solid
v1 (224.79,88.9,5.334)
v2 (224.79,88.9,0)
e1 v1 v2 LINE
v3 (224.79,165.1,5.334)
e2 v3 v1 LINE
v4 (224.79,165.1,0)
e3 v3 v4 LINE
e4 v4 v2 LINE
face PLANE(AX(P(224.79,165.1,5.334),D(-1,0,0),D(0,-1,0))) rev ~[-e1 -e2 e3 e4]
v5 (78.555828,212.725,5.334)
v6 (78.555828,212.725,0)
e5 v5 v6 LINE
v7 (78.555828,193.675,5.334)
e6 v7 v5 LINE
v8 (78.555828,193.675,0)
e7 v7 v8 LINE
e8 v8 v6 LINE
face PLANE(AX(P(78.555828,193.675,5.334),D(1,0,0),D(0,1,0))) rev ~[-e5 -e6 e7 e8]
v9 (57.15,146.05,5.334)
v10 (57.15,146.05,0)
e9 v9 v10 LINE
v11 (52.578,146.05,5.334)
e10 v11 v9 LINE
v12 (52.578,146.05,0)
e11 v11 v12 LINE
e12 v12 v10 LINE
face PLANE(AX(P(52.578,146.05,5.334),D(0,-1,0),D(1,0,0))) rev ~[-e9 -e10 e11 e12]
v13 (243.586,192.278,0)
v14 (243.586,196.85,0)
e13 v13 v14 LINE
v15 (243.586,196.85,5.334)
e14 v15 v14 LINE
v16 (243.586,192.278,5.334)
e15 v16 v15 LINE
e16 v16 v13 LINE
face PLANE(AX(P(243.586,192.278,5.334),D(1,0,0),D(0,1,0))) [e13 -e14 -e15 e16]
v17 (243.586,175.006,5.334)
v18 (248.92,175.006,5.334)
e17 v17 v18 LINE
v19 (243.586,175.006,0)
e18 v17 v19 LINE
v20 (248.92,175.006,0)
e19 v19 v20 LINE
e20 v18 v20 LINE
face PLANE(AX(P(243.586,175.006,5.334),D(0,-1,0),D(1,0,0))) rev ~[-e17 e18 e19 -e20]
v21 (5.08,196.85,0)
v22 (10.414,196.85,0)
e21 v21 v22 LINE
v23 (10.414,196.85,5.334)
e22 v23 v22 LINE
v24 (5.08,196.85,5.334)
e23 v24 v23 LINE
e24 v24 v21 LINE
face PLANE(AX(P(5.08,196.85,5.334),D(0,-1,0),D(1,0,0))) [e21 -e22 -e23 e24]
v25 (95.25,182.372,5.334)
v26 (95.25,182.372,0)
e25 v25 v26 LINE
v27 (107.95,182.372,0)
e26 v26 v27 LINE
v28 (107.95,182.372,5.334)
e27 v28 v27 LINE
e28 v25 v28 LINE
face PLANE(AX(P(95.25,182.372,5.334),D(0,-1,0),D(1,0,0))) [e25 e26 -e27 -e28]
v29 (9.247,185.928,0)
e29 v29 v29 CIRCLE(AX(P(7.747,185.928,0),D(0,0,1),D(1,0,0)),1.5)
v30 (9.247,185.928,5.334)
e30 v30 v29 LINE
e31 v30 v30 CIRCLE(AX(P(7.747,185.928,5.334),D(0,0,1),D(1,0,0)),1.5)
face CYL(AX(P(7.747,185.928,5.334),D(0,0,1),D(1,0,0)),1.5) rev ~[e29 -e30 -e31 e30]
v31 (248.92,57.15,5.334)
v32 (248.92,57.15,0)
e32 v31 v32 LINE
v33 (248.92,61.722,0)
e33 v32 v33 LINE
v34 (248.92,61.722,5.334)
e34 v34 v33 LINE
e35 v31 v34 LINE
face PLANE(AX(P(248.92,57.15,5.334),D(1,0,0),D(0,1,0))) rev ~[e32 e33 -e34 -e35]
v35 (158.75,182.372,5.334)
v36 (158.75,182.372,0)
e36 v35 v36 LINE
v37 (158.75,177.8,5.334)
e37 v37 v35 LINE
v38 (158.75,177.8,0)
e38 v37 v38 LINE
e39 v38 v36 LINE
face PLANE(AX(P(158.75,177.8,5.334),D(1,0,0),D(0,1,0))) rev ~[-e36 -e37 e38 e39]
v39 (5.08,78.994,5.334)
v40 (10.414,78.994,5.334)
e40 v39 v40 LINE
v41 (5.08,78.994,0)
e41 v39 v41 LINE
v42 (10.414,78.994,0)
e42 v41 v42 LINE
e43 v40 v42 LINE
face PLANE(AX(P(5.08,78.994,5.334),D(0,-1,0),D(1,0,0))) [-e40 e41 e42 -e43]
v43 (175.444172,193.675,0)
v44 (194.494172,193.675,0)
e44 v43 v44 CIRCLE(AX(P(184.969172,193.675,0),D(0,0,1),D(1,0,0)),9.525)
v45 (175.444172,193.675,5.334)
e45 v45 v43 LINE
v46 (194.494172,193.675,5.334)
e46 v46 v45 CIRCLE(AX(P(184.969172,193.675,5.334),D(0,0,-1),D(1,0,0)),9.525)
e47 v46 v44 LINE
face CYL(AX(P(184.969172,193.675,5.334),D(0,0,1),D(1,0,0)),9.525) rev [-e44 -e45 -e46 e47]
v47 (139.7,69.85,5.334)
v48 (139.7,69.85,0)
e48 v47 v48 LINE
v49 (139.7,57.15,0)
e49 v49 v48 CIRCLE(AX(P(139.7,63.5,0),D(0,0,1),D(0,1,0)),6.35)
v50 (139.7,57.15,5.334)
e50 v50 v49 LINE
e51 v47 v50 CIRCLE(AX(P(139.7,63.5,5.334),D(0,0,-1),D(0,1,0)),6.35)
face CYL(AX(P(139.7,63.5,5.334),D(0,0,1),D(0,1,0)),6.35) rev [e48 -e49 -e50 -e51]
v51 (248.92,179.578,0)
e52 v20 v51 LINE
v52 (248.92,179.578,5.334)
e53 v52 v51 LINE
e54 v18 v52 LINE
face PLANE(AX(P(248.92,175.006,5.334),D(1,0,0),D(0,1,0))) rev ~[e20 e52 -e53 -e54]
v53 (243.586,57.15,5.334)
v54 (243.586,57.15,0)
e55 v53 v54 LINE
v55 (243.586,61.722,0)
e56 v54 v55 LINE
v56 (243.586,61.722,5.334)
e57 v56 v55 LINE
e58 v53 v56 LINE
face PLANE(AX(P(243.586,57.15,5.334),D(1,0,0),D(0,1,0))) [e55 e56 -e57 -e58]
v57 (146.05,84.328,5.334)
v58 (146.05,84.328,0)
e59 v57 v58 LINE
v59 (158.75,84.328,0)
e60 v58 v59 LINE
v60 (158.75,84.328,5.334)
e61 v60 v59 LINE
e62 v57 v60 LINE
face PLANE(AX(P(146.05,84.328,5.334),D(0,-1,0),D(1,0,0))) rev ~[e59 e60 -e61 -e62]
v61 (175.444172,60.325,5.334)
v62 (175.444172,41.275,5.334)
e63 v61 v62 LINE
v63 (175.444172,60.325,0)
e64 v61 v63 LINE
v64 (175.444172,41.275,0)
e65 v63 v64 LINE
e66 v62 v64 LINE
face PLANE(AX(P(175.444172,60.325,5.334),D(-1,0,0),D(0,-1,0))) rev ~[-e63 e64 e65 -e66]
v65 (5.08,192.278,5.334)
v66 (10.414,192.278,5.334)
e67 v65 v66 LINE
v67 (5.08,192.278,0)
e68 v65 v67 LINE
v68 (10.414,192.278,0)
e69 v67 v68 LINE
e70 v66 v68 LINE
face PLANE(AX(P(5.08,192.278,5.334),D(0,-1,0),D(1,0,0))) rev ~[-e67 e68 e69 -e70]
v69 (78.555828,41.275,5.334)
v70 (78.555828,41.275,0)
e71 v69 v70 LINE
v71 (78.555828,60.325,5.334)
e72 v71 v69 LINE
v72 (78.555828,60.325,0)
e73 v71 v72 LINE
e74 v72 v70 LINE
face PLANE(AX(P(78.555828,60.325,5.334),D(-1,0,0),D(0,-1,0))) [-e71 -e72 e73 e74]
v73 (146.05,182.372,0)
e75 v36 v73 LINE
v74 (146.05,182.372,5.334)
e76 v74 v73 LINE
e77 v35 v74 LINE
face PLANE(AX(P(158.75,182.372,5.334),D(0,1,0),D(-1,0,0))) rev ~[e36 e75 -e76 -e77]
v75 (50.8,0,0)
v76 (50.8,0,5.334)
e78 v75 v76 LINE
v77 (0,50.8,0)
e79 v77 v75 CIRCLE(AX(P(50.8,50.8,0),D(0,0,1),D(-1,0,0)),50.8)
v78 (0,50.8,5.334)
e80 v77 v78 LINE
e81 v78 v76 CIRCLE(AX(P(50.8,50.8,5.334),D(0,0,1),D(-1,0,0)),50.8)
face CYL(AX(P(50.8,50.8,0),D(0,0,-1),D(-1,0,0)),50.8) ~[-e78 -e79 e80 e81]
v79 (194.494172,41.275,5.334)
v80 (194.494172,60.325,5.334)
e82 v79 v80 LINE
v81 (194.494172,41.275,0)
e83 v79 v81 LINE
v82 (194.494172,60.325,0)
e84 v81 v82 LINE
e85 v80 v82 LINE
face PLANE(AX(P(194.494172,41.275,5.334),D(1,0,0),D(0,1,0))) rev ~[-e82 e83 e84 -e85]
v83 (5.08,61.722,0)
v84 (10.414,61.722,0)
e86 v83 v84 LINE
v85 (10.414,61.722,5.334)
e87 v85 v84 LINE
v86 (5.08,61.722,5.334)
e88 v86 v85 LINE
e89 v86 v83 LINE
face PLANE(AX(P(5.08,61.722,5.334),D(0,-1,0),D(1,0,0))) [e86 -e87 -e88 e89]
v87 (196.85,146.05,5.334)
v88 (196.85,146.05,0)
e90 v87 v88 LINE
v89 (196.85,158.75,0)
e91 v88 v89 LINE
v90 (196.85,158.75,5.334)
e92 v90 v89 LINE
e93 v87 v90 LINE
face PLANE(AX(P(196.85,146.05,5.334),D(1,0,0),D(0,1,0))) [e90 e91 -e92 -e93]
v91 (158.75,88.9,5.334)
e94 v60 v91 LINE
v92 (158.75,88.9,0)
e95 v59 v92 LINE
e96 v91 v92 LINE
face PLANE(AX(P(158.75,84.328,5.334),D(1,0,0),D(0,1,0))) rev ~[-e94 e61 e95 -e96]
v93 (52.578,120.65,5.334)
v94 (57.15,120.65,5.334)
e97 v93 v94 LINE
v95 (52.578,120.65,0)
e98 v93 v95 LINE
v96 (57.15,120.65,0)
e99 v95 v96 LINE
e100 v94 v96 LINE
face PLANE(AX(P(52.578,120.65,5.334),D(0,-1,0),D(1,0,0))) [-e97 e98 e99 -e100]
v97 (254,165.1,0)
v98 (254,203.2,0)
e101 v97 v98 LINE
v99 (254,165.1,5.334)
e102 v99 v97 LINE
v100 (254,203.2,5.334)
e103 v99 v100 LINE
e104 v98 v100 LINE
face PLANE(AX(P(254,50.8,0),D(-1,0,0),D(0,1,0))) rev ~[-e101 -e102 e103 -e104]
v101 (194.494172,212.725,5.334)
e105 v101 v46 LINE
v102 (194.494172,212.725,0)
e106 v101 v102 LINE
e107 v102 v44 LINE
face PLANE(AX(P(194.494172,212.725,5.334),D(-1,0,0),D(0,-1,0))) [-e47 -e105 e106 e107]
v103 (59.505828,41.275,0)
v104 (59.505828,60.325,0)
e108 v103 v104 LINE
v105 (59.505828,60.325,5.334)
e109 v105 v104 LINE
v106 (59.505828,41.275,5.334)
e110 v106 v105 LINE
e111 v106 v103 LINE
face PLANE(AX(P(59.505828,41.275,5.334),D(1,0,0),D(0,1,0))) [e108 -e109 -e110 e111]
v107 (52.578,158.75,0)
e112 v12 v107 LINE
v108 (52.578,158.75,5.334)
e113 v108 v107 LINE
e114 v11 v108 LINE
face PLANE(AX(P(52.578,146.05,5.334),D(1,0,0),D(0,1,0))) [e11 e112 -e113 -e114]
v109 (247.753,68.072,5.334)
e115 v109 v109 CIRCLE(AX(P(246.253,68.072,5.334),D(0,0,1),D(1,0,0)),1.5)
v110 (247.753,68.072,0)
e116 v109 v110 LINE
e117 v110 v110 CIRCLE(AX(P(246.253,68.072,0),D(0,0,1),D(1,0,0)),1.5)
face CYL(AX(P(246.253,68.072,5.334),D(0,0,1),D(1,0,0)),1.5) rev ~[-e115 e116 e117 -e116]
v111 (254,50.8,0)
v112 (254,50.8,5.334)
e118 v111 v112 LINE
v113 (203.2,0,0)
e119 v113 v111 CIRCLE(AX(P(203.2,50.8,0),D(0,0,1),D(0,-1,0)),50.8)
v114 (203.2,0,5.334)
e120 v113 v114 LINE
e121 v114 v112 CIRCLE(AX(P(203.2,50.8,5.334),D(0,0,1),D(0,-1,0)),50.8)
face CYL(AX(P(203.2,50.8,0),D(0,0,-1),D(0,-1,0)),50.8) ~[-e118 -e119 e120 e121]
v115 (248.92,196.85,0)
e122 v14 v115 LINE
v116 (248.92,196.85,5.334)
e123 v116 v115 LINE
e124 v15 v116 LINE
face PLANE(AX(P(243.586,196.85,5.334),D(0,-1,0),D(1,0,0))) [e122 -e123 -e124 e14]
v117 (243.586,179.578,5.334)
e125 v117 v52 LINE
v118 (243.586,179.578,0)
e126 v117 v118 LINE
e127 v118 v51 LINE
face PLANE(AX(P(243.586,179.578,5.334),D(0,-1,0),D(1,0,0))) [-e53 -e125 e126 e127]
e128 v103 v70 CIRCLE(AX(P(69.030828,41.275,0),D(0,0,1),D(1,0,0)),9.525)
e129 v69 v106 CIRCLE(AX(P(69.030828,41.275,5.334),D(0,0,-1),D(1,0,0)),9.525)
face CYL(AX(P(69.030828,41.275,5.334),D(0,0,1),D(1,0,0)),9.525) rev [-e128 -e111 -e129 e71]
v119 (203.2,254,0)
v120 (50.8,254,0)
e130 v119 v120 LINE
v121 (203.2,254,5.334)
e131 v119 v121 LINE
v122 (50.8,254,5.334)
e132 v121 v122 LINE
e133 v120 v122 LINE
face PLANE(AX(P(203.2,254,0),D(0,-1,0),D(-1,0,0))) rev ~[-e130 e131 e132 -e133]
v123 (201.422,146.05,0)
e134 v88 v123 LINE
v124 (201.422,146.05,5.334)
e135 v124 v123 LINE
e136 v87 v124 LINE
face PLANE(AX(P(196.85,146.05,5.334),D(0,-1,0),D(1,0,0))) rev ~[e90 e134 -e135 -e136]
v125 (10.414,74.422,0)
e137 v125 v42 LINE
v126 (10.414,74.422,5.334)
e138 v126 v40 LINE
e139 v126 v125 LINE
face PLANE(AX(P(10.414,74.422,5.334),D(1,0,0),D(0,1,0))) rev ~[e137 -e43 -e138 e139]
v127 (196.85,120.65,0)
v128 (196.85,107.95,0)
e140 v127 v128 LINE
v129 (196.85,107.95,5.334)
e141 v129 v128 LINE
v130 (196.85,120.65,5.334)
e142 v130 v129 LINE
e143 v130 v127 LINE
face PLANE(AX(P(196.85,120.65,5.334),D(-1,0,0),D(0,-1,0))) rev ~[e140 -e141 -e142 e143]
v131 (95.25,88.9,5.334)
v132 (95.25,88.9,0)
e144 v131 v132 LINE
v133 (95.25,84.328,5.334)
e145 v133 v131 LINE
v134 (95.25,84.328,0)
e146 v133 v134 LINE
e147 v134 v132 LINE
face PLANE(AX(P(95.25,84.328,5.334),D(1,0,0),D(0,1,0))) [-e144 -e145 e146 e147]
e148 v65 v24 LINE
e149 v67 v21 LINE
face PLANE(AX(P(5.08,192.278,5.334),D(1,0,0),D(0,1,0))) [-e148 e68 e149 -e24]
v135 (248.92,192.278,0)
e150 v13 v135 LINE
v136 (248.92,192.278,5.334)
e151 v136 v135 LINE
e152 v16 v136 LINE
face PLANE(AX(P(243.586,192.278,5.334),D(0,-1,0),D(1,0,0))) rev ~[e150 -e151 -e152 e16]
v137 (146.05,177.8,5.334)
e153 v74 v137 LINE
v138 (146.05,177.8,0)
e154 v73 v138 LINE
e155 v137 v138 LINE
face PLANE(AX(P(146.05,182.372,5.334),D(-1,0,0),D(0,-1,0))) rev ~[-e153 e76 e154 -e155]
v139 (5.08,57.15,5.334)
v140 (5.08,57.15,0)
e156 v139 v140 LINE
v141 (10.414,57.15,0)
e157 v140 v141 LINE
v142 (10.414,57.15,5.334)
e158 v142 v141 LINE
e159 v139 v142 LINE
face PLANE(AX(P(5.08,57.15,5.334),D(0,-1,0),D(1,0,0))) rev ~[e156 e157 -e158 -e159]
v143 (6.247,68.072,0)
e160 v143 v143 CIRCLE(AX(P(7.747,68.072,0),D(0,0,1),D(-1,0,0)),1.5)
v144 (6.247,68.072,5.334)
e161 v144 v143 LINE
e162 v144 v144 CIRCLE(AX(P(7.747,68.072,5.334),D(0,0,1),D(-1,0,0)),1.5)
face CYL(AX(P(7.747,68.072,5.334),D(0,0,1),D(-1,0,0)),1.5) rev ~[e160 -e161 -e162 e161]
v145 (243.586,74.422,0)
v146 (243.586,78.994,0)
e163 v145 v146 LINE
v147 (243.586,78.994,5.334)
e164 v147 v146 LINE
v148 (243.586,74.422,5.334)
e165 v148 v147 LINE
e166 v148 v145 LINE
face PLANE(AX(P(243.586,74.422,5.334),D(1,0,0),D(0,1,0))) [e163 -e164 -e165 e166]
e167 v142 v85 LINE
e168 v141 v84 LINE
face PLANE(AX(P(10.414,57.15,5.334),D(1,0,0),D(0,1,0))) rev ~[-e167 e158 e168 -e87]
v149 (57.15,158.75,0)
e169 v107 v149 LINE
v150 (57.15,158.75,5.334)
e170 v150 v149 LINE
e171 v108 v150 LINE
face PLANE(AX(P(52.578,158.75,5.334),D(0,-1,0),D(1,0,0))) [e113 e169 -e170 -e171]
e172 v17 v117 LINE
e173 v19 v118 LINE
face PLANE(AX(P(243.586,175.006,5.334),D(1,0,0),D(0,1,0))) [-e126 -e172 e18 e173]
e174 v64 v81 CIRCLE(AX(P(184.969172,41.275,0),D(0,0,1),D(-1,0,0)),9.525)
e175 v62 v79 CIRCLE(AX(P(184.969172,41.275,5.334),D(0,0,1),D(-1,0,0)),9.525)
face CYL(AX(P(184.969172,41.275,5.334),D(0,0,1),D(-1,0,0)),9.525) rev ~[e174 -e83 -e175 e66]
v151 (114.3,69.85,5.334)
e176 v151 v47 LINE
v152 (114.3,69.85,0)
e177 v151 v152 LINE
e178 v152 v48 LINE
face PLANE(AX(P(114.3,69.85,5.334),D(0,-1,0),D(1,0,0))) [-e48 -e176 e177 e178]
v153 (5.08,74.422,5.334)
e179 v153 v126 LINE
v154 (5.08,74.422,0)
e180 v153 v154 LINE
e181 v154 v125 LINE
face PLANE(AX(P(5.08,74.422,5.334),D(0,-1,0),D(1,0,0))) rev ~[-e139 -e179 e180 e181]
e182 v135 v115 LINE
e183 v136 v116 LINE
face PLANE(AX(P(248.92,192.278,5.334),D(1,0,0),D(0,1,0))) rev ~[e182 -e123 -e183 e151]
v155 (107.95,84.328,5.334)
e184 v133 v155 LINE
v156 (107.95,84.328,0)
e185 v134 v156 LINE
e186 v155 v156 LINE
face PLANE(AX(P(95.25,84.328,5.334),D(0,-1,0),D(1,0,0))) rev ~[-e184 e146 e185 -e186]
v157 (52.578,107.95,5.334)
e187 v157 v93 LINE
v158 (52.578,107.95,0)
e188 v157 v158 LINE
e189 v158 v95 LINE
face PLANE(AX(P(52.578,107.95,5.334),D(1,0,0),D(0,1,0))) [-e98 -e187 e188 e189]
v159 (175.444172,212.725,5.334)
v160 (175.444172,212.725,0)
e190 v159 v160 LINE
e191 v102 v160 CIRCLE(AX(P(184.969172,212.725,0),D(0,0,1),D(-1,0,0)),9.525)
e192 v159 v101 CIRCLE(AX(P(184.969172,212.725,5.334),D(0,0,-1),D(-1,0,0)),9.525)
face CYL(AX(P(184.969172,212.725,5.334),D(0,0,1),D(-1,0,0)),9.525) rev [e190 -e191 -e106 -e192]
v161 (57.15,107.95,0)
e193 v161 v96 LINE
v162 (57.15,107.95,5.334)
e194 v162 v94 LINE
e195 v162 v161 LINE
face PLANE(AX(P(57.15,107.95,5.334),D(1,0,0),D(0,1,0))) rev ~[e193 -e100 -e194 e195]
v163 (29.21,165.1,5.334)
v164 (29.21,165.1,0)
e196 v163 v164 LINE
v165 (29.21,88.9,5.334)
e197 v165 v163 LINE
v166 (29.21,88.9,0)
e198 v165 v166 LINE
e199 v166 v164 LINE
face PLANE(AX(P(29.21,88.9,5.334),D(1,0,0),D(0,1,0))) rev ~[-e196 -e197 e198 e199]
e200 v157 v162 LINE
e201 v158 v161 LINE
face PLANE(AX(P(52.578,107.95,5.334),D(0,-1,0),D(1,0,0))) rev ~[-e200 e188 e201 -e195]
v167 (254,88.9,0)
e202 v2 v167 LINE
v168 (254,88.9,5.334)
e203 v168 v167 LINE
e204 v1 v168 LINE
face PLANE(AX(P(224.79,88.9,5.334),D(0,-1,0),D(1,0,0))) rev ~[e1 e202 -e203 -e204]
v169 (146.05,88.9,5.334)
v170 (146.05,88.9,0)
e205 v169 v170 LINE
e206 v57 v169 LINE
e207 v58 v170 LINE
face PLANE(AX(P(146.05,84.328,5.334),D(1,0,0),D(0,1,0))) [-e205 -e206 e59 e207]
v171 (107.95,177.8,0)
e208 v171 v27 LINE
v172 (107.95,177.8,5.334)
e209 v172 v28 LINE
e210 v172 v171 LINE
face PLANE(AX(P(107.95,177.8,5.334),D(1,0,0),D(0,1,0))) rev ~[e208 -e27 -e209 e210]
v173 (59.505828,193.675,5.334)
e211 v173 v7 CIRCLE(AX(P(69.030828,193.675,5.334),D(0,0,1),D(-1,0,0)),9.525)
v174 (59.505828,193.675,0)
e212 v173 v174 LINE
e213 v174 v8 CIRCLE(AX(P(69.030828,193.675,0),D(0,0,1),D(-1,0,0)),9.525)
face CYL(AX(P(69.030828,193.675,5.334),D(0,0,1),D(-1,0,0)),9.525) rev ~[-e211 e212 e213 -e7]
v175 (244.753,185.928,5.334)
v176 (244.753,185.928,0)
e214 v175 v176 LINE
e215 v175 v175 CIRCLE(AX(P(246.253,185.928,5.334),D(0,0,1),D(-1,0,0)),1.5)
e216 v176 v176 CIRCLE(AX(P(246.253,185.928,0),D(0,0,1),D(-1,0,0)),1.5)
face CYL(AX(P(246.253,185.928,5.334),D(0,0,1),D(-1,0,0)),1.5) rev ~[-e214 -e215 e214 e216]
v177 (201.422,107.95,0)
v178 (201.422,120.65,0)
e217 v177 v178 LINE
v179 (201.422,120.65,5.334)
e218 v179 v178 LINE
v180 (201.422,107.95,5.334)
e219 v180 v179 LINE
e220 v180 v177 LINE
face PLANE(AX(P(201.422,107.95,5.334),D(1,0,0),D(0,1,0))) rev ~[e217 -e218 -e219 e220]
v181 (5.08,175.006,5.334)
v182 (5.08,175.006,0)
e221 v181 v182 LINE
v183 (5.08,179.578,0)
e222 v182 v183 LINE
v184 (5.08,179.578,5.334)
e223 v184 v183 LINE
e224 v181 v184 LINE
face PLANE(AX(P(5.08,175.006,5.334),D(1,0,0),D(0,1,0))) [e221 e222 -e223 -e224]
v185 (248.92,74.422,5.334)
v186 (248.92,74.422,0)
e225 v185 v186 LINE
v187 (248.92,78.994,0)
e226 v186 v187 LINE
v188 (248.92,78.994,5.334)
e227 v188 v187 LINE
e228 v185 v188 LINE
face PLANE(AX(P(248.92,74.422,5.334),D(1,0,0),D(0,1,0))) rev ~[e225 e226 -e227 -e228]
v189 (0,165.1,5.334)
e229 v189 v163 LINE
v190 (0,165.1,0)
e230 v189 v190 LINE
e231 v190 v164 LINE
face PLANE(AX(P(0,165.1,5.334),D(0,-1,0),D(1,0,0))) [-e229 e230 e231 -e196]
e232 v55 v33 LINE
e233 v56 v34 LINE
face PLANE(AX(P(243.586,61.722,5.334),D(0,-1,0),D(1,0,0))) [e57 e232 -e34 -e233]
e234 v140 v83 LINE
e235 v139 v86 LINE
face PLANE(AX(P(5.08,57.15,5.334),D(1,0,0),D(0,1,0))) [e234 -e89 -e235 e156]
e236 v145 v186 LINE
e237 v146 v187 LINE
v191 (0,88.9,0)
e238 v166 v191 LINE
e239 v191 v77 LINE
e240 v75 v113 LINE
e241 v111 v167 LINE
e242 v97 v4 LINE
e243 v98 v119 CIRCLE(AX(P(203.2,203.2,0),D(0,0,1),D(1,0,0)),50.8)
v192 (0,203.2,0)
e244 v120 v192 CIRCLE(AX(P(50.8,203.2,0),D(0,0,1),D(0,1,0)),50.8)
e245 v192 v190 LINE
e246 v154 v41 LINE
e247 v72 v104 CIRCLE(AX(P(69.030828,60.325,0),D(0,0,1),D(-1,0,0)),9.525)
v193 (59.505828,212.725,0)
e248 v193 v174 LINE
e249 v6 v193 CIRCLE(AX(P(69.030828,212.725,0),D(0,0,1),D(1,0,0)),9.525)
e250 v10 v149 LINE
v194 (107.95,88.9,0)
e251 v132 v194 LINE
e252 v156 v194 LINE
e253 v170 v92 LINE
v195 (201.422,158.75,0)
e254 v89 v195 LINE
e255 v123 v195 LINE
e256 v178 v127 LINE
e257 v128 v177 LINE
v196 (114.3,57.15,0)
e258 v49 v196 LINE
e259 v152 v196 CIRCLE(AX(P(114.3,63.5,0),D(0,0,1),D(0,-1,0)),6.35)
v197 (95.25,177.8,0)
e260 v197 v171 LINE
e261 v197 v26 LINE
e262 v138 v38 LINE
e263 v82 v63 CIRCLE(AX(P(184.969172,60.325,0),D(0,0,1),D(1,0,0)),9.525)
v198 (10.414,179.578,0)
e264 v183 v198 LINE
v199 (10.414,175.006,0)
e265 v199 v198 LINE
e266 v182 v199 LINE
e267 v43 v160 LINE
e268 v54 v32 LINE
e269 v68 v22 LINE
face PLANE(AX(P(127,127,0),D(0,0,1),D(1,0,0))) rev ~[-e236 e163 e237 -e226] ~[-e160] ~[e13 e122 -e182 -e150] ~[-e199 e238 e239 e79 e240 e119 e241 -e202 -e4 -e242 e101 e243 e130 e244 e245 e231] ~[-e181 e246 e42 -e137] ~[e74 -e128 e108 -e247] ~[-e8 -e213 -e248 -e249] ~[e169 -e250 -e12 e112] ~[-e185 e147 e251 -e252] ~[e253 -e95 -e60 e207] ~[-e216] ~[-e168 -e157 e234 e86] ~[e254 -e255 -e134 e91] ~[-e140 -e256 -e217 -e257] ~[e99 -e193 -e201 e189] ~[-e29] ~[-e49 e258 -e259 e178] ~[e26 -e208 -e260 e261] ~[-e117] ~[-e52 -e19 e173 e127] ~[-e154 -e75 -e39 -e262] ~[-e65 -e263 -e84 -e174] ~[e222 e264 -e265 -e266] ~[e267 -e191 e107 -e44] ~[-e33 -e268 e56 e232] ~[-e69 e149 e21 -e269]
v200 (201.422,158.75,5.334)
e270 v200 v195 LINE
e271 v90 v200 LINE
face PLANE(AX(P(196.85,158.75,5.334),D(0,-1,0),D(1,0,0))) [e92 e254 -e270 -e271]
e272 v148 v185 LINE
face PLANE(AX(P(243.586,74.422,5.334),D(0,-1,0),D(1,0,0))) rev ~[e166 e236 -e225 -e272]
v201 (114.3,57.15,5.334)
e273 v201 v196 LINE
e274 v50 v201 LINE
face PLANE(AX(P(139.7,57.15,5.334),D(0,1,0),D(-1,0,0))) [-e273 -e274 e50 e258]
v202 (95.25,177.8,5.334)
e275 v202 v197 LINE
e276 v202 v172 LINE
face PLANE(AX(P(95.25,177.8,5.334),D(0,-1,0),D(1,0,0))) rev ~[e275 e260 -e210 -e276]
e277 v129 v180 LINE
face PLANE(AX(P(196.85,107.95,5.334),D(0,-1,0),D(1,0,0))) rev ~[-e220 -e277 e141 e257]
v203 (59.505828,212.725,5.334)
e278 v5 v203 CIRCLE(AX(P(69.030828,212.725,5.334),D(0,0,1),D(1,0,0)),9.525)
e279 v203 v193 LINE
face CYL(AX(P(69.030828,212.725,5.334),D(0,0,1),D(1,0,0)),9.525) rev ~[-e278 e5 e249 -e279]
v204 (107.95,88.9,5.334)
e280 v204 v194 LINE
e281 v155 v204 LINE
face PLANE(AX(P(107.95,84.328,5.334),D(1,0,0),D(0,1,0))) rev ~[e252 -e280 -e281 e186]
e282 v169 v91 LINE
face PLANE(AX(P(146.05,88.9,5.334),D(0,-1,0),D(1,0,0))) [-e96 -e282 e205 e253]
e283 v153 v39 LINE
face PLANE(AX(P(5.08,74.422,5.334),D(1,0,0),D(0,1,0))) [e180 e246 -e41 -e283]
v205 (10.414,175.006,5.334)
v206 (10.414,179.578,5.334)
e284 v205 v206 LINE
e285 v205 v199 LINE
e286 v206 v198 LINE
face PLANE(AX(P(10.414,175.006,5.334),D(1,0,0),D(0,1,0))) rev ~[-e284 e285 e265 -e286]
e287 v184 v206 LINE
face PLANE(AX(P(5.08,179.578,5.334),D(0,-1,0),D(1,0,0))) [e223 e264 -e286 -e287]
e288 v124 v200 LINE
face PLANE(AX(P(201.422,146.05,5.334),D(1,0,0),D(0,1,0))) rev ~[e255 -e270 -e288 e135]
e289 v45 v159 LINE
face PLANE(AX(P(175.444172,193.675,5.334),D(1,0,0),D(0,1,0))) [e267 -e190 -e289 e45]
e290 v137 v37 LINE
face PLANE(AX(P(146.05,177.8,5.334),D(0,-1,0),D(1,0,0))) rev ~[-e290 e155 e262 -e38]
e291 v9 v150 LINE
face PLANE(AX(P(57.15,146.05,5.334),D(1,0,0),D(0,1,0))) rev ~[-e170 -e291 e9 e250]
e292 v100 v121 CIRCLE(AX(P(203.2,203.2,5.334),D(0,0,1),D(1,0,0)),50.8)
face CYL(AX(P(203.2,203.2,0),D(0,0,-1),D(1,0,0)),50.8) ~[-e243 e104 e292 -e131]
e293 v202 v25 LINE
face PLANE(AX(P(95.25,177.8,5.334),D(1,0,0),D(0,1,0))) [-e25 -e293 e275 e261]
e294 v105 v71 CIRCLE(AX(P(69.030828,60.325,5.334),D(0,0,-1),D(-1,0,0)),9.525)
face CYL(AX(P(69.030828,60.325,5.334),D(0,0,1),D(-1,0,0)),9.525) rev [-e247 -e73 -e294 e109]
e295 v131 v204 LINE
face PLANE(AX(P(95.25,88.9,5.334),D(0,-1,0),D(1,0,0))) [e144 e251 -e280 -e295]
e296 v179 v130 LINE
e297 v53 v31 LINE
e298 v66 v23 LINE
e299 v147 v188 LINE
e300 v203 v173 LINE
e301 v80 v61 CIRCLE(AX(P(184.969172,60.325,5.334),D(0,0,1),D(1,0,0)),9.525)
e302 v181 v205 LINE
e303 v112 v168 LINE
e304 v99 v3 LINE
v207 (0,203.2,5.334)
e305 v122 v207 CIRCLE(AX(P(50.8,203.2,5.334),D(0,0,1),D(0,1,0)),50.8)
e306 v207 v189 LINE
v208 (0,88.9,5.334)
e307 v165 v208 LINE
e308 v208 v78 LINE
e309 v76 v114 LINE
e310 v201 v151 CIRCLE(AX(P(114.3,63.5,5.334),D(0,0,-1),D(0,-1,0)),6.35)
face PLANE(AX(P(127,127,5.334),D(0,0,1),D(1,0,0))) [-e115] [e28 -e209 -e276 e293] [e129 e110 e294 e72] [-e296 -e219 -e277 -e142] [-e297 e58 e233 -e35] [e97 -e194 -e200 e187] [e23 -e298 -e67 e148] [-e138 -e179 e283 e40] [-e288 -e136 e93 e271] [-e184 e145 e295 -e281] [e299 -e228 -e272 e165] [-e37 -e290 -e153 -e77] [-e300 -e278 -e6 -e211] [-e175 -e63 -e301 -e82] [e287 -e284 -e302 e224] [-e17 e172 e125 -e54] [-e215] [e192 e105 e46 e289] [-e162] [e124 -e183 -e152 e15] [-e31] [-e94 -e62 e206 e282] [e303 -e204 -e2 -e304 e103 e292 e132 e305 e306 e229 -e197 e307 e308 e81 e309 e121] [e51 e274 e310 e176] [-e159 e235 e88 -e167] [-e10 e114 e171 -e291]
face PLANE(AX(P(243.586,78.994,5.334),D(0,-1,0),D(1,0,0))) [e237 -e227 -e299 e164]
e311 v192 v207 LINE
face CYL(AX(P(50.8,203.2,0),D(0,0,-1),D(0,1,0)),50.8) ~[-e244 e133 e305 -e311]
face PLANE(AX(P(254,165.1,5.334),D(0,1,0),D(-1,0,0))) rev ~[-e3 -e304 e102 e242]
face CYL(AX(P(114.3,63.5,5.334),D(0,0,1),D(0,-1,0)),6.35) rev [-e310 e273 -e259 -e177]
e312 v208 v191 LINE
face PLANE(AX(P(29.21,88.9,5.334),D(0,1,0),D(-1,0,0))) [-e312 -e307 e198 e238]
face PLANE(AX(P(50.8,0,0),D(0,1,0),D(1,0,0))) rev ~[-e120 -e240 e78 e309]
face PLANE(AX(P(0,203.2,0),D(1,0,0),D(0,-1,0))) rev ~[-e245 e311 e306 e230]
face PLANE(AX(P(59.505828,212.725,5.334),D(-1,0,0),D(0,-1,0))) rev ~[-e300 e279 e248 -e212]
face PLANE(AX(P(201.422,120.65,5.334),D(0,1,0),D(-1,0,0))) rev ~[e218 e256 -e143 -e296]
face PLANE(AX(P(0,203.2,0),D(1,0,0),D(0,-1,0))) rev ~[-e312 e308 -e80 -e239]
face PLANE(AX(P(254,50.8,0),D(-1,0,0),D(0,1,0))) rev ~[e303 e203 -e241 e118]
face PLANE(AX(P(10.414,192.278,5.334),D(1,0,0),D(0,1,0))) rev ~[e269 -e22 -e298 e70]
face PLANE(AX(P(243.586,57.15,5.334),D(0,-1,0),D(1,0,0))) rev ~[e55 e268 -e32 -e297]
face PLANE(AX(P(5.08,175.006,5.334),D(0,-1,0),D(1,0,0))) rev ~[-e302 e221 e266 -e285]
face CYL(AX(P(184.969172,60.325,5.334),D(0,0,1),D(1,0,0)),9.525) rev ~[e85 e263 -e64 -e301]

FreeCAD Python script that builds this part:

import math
import FreeCAD as App
import Part
import Sketcher
from FreeCAD import Vector
Q = App.Units.Quantity


def add_polygon(sketch, points):
    """Adds a closed chain of lines whose ends are joined by coincident constraints."""
    first, n = sketch.GeometryCount, len(points)
    for a, b in zip(points, points[1:] + points[:1]):
        sketch.addGeometry(Part.LineSegment(App.Vector(*a, 0), App.Vector(*b, 0)), False)
    for i in range(n):
        sketch.addConstraint(Sketcher.Constraint("Coincident", first + i, 2, first + (i + 1) % n, 1))

doc = App.newDocument("Part")
body = doc.addObject("PartDesign::Body", "Body")

sketch1 = body.newObject("Sketcher::SketchObject", "Sketch")
sketch1.AttachmentSupport = (doc.getObject("XY_Plane"), [""])
sketch1.MapMode = "FlatFace"
sketch1.addGeometry(Part.LineSegment(Vector(51, 0, 0), Vector(203, 0, 0)), False)
sketch1.addGeometry(Part.ArcOfCircle(Part.Circle(Vector(203, 51, 0), Vector(0, 0, 1), 51), math.radians(-90), math.radians(0)), False)
sketch1.addGeometry(Part.LineSegment(Vector(254, 51, 0), Vector(254, 203, 0)), False)
sketch1.addGeometry(Part.ArcOfCircle(Part.Circle(Vector(203, 203, 0), Vector(0, 0, 1), 51), math.radians(0), math.radians(90)), False)
sketch1.addGeometry(Part.LineSegment(Vector(203, 254, 0), Vector(51, 254, 0)), False)
sketch1.addGeometry(Part.ArcOfCircle(Part.Circle(Vector(51, 203, 0), Vector(0, 0, 1), 51), math.radians(90), math.radians(180)), False)
sketch1.addGeometry(Part.LineSegment(Vector(0, 203, 0), Vector(0, 51, 0)), False)
sketch1.addGeometry(Part.ArcOfCircle(Part.Circle(Vector(51, 51, 0), Vector(0, 0, 1), 51), math.radians(-180), math.radians(-90)), False)
sketch1.addConstraint(Sketcher.Constraint("Tangent", 0, 2, 1, 1))
sketch1.addConstraint(Sketcher.Constraint("Tangent", 1, 2, 2, 1))
sketch1.addConstraint(Sketcher.Constraint("Tangent", 2, 2, 3, 1))
sketch1.addConstraint(Sketcher.Constraint("Tangent", 3, 2, 4, 1))
sketch1.addConstraint(Sketcher.Constraint("Tangent", 4, 2, 5, 1))
sketch1.addConstraint(Sketcher.Constraint("Tangent", 5, 2, 6, 1))
sketch1.addConstraint(Sketcher.Constraint("Tangent", 6, 2, 7, 1))
sketch1.addConstraint(Sketcher.Constraint("Tangent", 7, 2, 0, 1))
sketch1.addConstraint(Sketcher.Constraint("Horizontal", 0))
sketch1.addConstraint(Sketcher.Constraint("Vertical", 2))
sketch1.addConstraint(Sketcher.Constraint("Horizontal", 4))
sketch1.addConstraint(Sketcher.Constraint("Vertical", 6))
sketch1.addConstraint(Sketcher.Constraint("Equal", 1, 3))
sketch1.addConstraint(Sketcher.Constraint("Equal", 3, 5))
sketch1.addConstraint(Sketcher.Constraint("Equal", 5, 7))
sketch1.addConstraint(Sketcher.Constraint("PointOnObject", 0, 2, -1))
sketch1.addConstraint(Sketcher.Constraint("PointOnObject", 5, 2, -2))
sketch1.addConstraint(Sketcher.Constraint("Equal", 4, 2))
sketch1.addConstraint(Sketcher.Constraint("Radius", 1, Q("2 in")))
sketch1.addConstraint(Sketcher.Constraint("DistanceX", 0, 1, 0, 2, Q("6 in")))
pad1 = body.newObject("PartDesign::Pad", "Pad")
pad1.Profile = sketch1
pad1.Length = Q("0.21 in")

sketch2 = body.newObject("Sketcher::SketchObject", "Sketch001")
sketch2.AttachmentSupport = (doc.getObject("XY_Plane"), [""])
sketch2.MapMode = "FlatFace"
sketch2.AttachmentOffset = App.Placement(Vector(0, 0, 0.21 * 25.4), App.Rotation())
add_polygon(sketch2, [(29, 89), (29, 165), (0, 165), (0, 89)])
add_polygon(sketch2, [(254, 165), (225, 165), (225, 89), (254, 89)])
sketch2.addConstraint(Sketcher.Constraint("Vertical", 0))
sketch2.addConstraint(Sketcher.Constraint("Horizontal", 1))
sketch2.addConstraint(Sketcher.Constraint("Vertical", 2))
sketch2.addConstraint(Sketcher.Constraint("Horizontal", 3))
sketch2.addConstraint(Sketcher.Constraint("Horizontal", 4))
sketch2.addConstraint(Sketcher.Constraint("Vertical", 5))
sketch2.addConstraint(Sketcher.Constraint("Horizontal", 6))
sketch2.addConstraint(Sketcher.Constraint("Vertical", 7))
sketch2.addConstraint(Sketcher.Constraint("PointOnObject", 1, 2, -2))
sketch2.addConstraint(Sketcher.Constraint("Horizontal", 1, 2, 4, 2))
sketch2.addConstraint(Sketcher.Constraint("Horizontal", 3, 2, 5, 2))
sketch2.addConstraint(Sketcher.Constraint("Equal", 3, 4))
sketch2.addConstraint(Sketcher.Constraint("DistanceY", 0, 1, 0, 2, Q("3 in")))
sketch2.addConstraint(Sketcher.Constraint("DistanceX", -1, 1, 6, 2, Q("10 in")))
sketch2.addConstraint(Sketcher.Constraint("DistanceX", 1, 2, 1, 1, Q("1.15 in")))
sketch2.addConstraint(Sketcher.Constraint("DistanceY", -1, 1, 0, 2, Q("6.5 in")))
pocket1 = body.newObject("PartDesign::Pocket", "Pocket")
pocket1.Profile = sketch2
pocket1.Length = Q("0.21 in")

sketch3 = body.newObject("Sketcher::SketchObject", "Sketch002")
sketch3.AttachmentSupport = (doc.getObject("XY_Plane"), [""])
sketch3.MapMode = "FlatFace"
sketch3.AttachmentOffset = App.Placement(Vector(0, 0, 0.21 * 25.4), App.Rotation())
sketch3.addGeometry(Part.Circle(Vector(7.7, 185.9, 0), Vector(0, 0, 1), 1.5), False)
sketch3.addGeometry(Part.Circle(Vector(246.3, 185.9, 0), Vector(0, 0, 1), 1.5), False)
sketch3.addGeometry(Part.Circle(Vector(246.3, 68.1, 0), Vector(0, 0, 1), 1.5), False)
sketch3.addGeometry(Part.Circle(Vector(7.7, 68.1, 0), Vector(0, 0, 1), 1.5), False)
add_polygon(sketch3, [(5.1, 196.8), (5.1, 192.3), (10.4, 192.3), (10.4, 196.8)])
add_polygon(sketch3, [(5.1, 179.6), (5.1, 175), (10.4, 175), (10.4, 179.6)])
add_polygon(sketch3, [(243.6, 179.6), (243.6, 175), (248.9, 175), (248.9, 179.6)])
add_polygon(sketch3, [(243.6, 196.8), (243.6, 192.3), (248.9, 192.3), (248.9, 196.8)])
add_polygon(sketch3, [(243.6, 61.7), (243.6, 57.1), (248.9, 57.1), (248.9, 61.7)])
add_polygon(sketch3, [(243.6, 79), (243.6, 74.4), (248.9, 74.4), (248.9, 79)])
add_polygon(sketch3, [(5.1, 79), (5.1, 74.4), (10.4, 74.4), (10.4, 79)])
add_polygon(sketch3, [(5.1, 61.7), (5.1, 57.1), (10.4, 57.1), (10.4, 61.7)])
sketch3.addConstraint(Sketcher.Constraint("Vertical", 4))
sketch3.addConstraint(Sketcher.Constraint("Horizontal", 5))
sketch3.addConstraint(Sketcher.Constraint("Vertical", 6))
sketch3.addConstraint(Sketcher.Constraint("Horizontal", 7))
sketch3.addConstraint(Sketcher.Constraint("Vertical", 8))
sketch3.addConstraint(Sketcher.Constraint("Horizontal", 9))
sketch3.addConstraint(Sketcher.Constraint("Vertical", 10))
sketch3.addConstraint(Sketcher.Constraint("Horizontal", 11))
sketch3.addConstraint(Sketcher.Constraint("Vertical", 12))
sketch3.addConstraint(Sketcher.Constraint("Horizontal", 13))
sketch3.addConstraint(Sketcher.Constraint("Vertical", 14))
sketch3.addConstraint(Sketcher.Constraint("Horizontal", 15))
sketch3.addConstraint(Sketcher.Constraint("Vertical", 16))
sketch3.addConstraint(Sketcher.Constraint("Horizontal", 17))
sketch3.addConstraint(Sketcher.Constraint("Vertical", 18))
sketch3.addConstraint(Sketcher.Constraint("Horizontal", 19))
sketch3.addConstraint(Sketcher.Constraint("Vertical", 20))
sketch3.addConstraint(Sketcher.Constraint("Horizontal", 21))
sketch3.addConstraint(Sketcher.Constraint("Vertical", 22))
sketch3.addConstraint(Sketcher.Constraint("Horizontal", 23))
sketch3.addConstraint(Sketcher.Constraint("Vertical", 24))
sketch3.addConstraint(Sketcher.Constraint("Horizontal", 25))
sketch3.addConstraint(Sketcher.Constraint("Vertical", 26))
sketch3.addConstraint(Sketcher.Constraint("Horizontal", 27))
sketch3.addConstraint(Sketcher.Constraint("Vertical", 28))
sketch3.addConstraint(Sketcher.Constraint("Horizontal", 29))
sketch3.addConstraint(Sketcher.Constraint("Vertical", 30))
sketch3.addConstraint(Sketcher.Constraint("Horizontal", 31))
sketch3.addConstraint(Sketcher.Constraint("Vertical", 32))
sketch3.addConstraint(Sketcher.Constraint("Horizontal", 33))
sketch3.addConstraint(Sketcher.Constraint("Vertical", 34))
sketch3.addConstraint(Sketcher.Constraint("Horizontal", 35))
sketch3.addConstraint(Sketcher.Constraint("Equal", 0, 1))
sketch3.addConstraint(Sketcher.Constraint("Equal", 1, 2))
sketch3.addConstraint(Sketcher.Constraint("Equal", 2, 3))
sketch3.addConstraint(Sketcher.Constraint("Horizontal", 0, 3, 1, 3))
sketch3.addConstraint(Sketcher.Constraint("Horizontal", 2, 3, 3, 3))
sketch3.addConstraint(Sketcher.Constraint("Horizontal", 9, 2, 12, 2))
sketch3.addConstraint(Sketcher.Constraint("Horizontal", 11, 2, 14, 2))
sketch3.addConstraint(Sketcher.Constraint("Horizontal", 5, 2, 16, 2))
sketch3.addConstraint(Sketcher.Constraint("Horizontal", 7, 2, 18, 2))
sketch3.addConstraint(Sketcher.Constraint("Horizontal", 25, 2, 28, 2))
sketch3.addConstraint(Sketcher.Constraint("Horizontal", 27, 2, 30, 2))
sketch3.addConstraint(Sketcher.Constraint("Horizontal", 21, 2, 32, 2))
sketch3.addConstraint(Sketcher.Constraint("Horizontal", 23, 2, 34, 2))
sketch3.addConstraint(Sketcher.Constraint("Vertical", 1, 3, 2, 3))
sketch3.addConstraint(Sketcher.Constraint("Vertical", 0, 3, 3, 3))
sketch3.addConstraint(Sketcher.Constraint("Vertical", 7, 2, 8, 2))
sketch3.addConstraint(Sketcher.Constraint("Vertical", 6, 2, 9, 2))
sketch3.addConstraint(Sketcher.Constraint("Vertical", 15, 2, 16, 2))
sketch3.addConstraint(Sketcher.Constraint("Vertical", 14, 2, 17, 2))
sketch3.addConstraint(Sketcher.Constraint("Vertical", 19, 2, 20, 2))
sketch3.addConstraint(Sketcher.Constraint("Vertical", 18, 2, 21, 2))
sketch3.addConstraint(Sketcher.Constraint("Vertical", 23, 2, 24, 2))
sketch3.addConstraint(Sketcher.Constraint("Vertical", 22, 2, 25, 2))
sketch3.addConstraint(Sketcher.Constraint("Vertical", 11, 2, 28, 2))
sketch3.addConstraint(Sketcher.Constraint("Vertical", 10, 2, 29, 2))
sketch3.addConstraint(Sketcher.Constraint("Vertical", 31, 2, 32, 2))
sketch3.addConstraint(Sketcher.Constraint("Vertical", 30, 2, 33, 2))
sketch3.addConstraint(Sketcher.Constraint("Equal", 11, 13))
sketch3.addConstraint(Sketcher.Constraint("Equal", 6, 8))
sketch3.addConstraint(Sketcher.Constraint("Equal", 18, 20))
sketch3.addConstraint(Sketcher.Constraint("Equal", 22, 24))
sketch3.addConstraint(Sketcher.Constraint("DistanceX", 5, 1, 5, 2, Q("0.21 in")))
sketch3.addConstraint(Sketcher.Constraint("DistanceY", 4, 2, 4, 1, Q("0.18 in")))
sketch3.addConstraint(Sketcher.Constraint("DistanceX", -1, 1, 4, 2, Q("0.2 in")))
sketch3.addConstraint(Sketcher.Constraint("DistanceX", -1, 1, 13, 2, Q("9.8 in")))
sketch3.addConstraint(Sketcher.Constraint("DistanceY", 10, 2, 5, 2, Q("0.5 in")))
sketch3.addConstraint(Sketcher.Constraint("DistanceY", 23, 2, 24, 2, Q("0.5 in")))
sketch3.addConstraint(Sketcher.Constraint("Diameter", 0, 3.0))
sketch3.addConstraint(Sketcher.Constraint("DistanceY", -1, 1, 0, 3, Q("7.32 in")))
sketch3.addConstraint(Sketcher.Constraint("DistanceY", -1, 1, 2, 3, Q("2.68 in")))
sketch3.addConstraint(Sketcher.Constraint("DistanceY", -1, 1, 4, 2, Q("7.57 in")))
sketch3.addConstraint(Sketcher.Constraint("DistanceY", -1, 1, 20, 2, Q("2.25 in")))
sketch3.addConstraint(Sketcher.Constraint("DistanceX", 0, 3, 1, 3, Q("9.39 in")))
sketch3.addConstraint(Sketcher.Constraint("DistanceX", -1, 1, 0, 3, Q("0.305 in")))
pocket2 = body.newObject("PartDesign::Pocket", "Pocket001")
pocket2.Profile = sketch3
pocket2.Type = "ThroughAll"

sketch4 = body.newObject("Sketcher::SketchObject", "Sketch003")
sketch4.AttachmentSupport = (doc.getObject("XY_Plane"), [""])
sketch4.MapMode = "FlatFace"
sketch4.AttachmentOffset = App.Placement(Vector(0, 0, 0.21 * 25.4), App.Rotation())
sketch4.addGeometry(Part.LineSegment(Vector(79, 41, 0), Vector(79, 60, 0)), False)
sketch4.addGeometry(Part.ArcOfCircle(Part.Circle(Vector(69, 60, 0), Vector(0, 0, 1), 10), math.radians(0), math.radians(180)), False)
sketch4.addGeometry(Part.LineSegment(Vector(60, 60, 0), Vector(60, 41, 0)), False)
sketch4.addGeometry(Part.ArcOfCircle(Part.Circle(Vector(69, 41, 0), Vector(0, 0, 1), 10), math.radians(180), math.radians(360)), False)
sketch4.addGeometry(Part.LineSegment(Vector(175, 60, 0), Vector(175, 41, 0)), False)
sketch4.addGeometry(Part.ArcOfCircle(Part.Circle(Vector(185, 41, 0), Vector(0, 0, 1), 10), math.radians(180), math.radians(360)), False)
sketch4.addGeometry(Part.LineSegment(Vector(194, 41, 0), Vector(194, 60, 0)), False)
sketch4.addGeometry(Part.ArcOfCircle(Part.Circle(Vector(185, 60, 0), Vector(0, 0, 1), 10), math.radians(0), math.radians(180)), False)
sketch4.addGeometry(Part.LineSegment(Vector(175, 213, 0), Vector(175, 194, 0)), False)
sketch4.addGeometry(Part.ArcOfCircle(Part.Circle(Vector(185, 194, 0), Vector(0, 0, 1), 10), math.radians(180), math.radians(360)), False)
sketch4.addGeometry(Part.LineSegment(Vector(194, 194, 0), Vector(194, 213, 0)), False)
sketch4.addGeometry(Part.ArcOfCircle(Part.Circle(Vector(185, 213, 0), Vector(0, 0, 1), 10), math.radians(0), math.radians(180)), False)
sketch4.addGeometry(Part.LineSegment(Vector(79, 194, 0), Vector(79, 213, 0)), False)
sketch4.addGeometry(Part.ArcOfCircle(Part.Circle(Vector(69, 213, 0), Vector(0, 0, 1), 10), math.radians(0), math.radians(180)), False)
sketch4.addGeometry(Part.LineSegment(Vector(60, 213, 0), Vector(60, 194, 0)), False)
sketch4.addGeometry(Part.ArcOfCircle(Part.Circle(Vector(69, 194, 0), Vector(0, 0, 1), 10), math.radians(180), math.radians(360)), False)
sketch4.addConstraint(Sketcher.Constraint("Tangent", 0, 2, 1, 1))
sketch4.addConstraint(Sketcher.Constraint("Tangent", 1, 2, 2, 1))
sketch4.addConstraint(Sketcher.Constraint("Tangent", 2, 2, 3, 1))
sketch4.addConstraint(Sketcher.Constraint("Tangent", 3, 2, 0, 1))
sketch4.addConstraint(Sketcher.Constraint("Tangent", 4, 2, 5, 1))
sketch4.addConstraint(Sketcher.Constraint("Tangent", 5, 2, 6, 1))
sketch4.addConstraint(Sketcher.Constraint("Tangent", 6, 2, 7, 1))
sketch4.addConstraint(Sketcher.Constraint("Tangent", 7, 2, 4, 1))
sketch4.addConstraint(Sketcher.Constraint("Tangent", 8, 2, 9, 1))
sketch4.addConstraint(Sketcher.Constraint("Tangent", 9, 2, 10, 1))
sketch4.addConstraint(Sketcher.Constraint("Tangent", 10, 2, 11, 1))
sketch4.addConstraint(Sketcher.Constraint("Tangent", 11, 2, 8, 1))
sketch4.addConstraint(Sketcher.Constraint("Tangent", 12, 2, 13, 1))
sketch4.addConstraint(Sketcher.Constraint("Tangent", 13, 2, 14, 1))
sketch4.addConstraint(Sketcher.Constraint("Tangent", 14, 2, 15, 1))
sketch4.addConstraint(Sketcher.Constraint("Tangent", 15, 2, 12, 1))
sketch4.addConstraint(Sketcher.Constraint("Vertical", 0))
sketch4.addConstraint(Sketcher.Constraint("Vertical", 2))
sketch4.addConstraint(Sketcher.Constraint("Vertical", 4))
sketch4.addConstraint(Sketcher.Constraint("Vertical", 6))
sketch4.addConstraint(Sketcher.Constraint("Vertical", 8))
sketch4.addConstraint(Sketcher.Constraint("Vertical", 10))
sketch4.addConstraint(Sketcher.Constraint("Vertical", 12))
sketch4.addConstraint(Sketcher.Constraint("Vertical", 14))
sketch4.addConstraint(Sketcher.Constraint("Equal", 3, 5))
sketch4.addConstraint(Sketcher.Constraint("Equal", 7, 9))
sketch4.addConstraint(Sketcher.Constraint("Equal", 11, 13))
sketch4.addConstraint(Sketcher.Constraint("Horizontal", 3, 3, 5, 3))
sketch4.addConstraint(Sketcher.Constraint("Horizontal", 1, 3, 7, 3))
sketch4.addConstraint(Sketcher.Constraint("Horizontal", 11, 3, 13, 3))
sketch4.addConstraint(Sketcher.Constraint("Horizontal", 9, 3, 15, 3))
sketch4.addConstraint(Sketcher.Constraint("Vertical", 7, 3, 9, 3))
sketch4.addConstraint(Sketcher.Constraint("Vertical", 3, 3, 13, 3))
sketch4.addConstraint(Sketcher.Constraint("Equal", 6, 8))
sketch4.addConstraint(Sketcher.Constraint("Radius", 1, Q("0.375 in")))
sketch4.addConstraint(Sketcher.Constraint("DistanceY", 5, 3, 9, 3, Q("6 in")))
sketch4.addConstraint(Sketcher.Constraint("DistanceY", 0, 1, 0, 2, Q("0.75 in")))
sketch4.addConstraint(Sketcher.Constraint("DistanceY", -1, 1, 1, 3, Q("2.375 in")))
sketch4.addConstraint(Sketcher.Constraint("DistanceX", -1, 1, 1, 3, 69.030828))
sketch4.addConstraint(Sketcher.Constraint("DistanceX", -1, 1, 5, 3, 184.969172))
pocket3 = body.newObject("PartDesign::Pocket", "Pocket002")
pocket3.Profile = sketch4
pocket3.Type = "ThroughAll"

sketch5 = body.newObject("Sketcher::SketchObject", "Sketch004")
sketch5.AttachmentSupport = (doc.getObject("XY_Plane"), [""])
sketch5.MapMode = "FlatFace"
sketch5.AttachmentOffset = App.Placement(Vector(0, 0, 0.21 * 25.4), App.Rotation())
sketch5.addGeometry(Part.LineSegment(Vector(140, 70, 0), Vector(114, 70, 0)), False)
sketch5.addGeometry(Part.ArcOfCircle(Part.Circle(Vector(114, 64, 0), Vector(0, 0, 1), 6), math.radians(90), math.radians(270)), False)
sketch5.addGeometry(Part.LineSegment(Vector(114, 57, 0), Vector(140, 57, 0)), False)
sketch5.addGeometry(Part.ArcOfCircle(Part.Circle(Vector(140, 64, 0), Vector(0, 0, 1), 6), math.radians(-90), math.radians(90)), False)
sketch5.addConstraint(Sketcher.Constraint("Tangent", 0, 2, 1, 1))
sketch5.addConstraint(Sketcher.Constraint("Tangent", 1, 2, 2, 1))
sketch5.addConstraint(Sketcher.Constraint("Tangent", 2, 2, 3, 1))
sketch5.addConstraint(Sketcher.Constraint("Tangent", 3, 2, 0, 1))
sketch5.addConstraint(Sketcher.Constraint("Horizontal", 0))
sketch5.addConstraint(Sketcher.Constraint("Horizontal", 2))
sketch5.addConstraint(Sketcher.Constraint("DistanceX", 0, 2, 0, 1, Q("1 in")))
sketch5.addConstraint(Sketcher.Constraint("Radius", 1, Q("0.25 in")))
sketch5.addConstraint(Sketcher.Constraint("DistanceX", -1, 1, 1, 3, Q("4.5 in")))
sketch5.addConstraint(Sketcher.Constraint("DistanceY", -1, 1, 1, 3, Q("2.5 in")))
pocket4 = body.newObject("PartDesign::Pocket", "Pocket003")
pocket4.Profile = sketch5
pocket4.Length = Q("0.3 in")

sketch6 = body.newObject("Sketcher::SketchObject", "Sketch005")
sketch6.AttachmentSupport = (doc.getObject("XY_Plane"), [""])
sketch6.MapMode = "FlatFace"
sketch6.AttachmentOffset = App.Placement(Vector(0, 0, 0.21 * 25.4), App.Rotation())
add_polygon(sketch6, [(146.1, 182.4), (146.1, 177.8), (158.8, 177.8), (158.8, 182.4)])
add_polygon(sketch6, [(95.2, 182.4), (95.2, 177.8), (108, 177.8), (108, 182.4)])
add_polygon(sketch6, [(196.8, 158.8), (196.8, 146.1), (201.4, 146.1), (201.4, 158.8)])
add_polygon(sketch6, [(196.8, 108), (201.4, 108), (201.4, 120.7), (196.8, 120.7)])
add_polygon(sketch6, [(146.1, 88.9), (146.1, 84.3), (158.8, 84.3), (158.8, 88.9)])
add_polygon(sketch6, [(95.2, 88.9), (95.2, 84.3), (108, 84.3), (108, 88.9)])
add_polygon(sketch6, [(52.6, 120.7), (52.6, 108), (57.1, 108), (57.1, 120.7)])
add_polygon(sketch6, [(52.6, 158.8), (52.6, 146.1), (57.1, 146.1), (57.1, 158.8)])
sketch6.addConstraint(Sketcher.Constraint("Vertical", 0))
sketch6.addConstraint(Sketcher.Constraint("Horizontal", 1))
sketch6.addConstraint(Sketcher.Constraint("Vertical", 2))
sketch6.addConstraint(Sketcher.Constraint("Horizontal", 3))
sketch6.addConstraint(Sketcher.Constraint("Vertical", 4))
sketch6.addConstraint(Sketcher.Constraint("Horizontal", 5))
sketch6.addConstraint(Sketcher.Constraint("Vertical", 6))
sketch6.addConstraint(Sketcher.Constraint("Horizontal", 7))
sketch6.addConstraint(Sketcher.Constraint("Vertical", 8))
sketch6.addConstraint(Sketcher.Constraint("Horizontal", 9))
sketch6.addConstraint(Sketcher.Constraint("Vertical", 10))
sketch6.addConstraint(Sketcher.Constraint("Horizontal", 11))
sketch6.addConstraint(Sketcher.Constraint("Horizontal", 12))
sketch6.addConstraint(Sketcher.Constraint("Vertical", 13))
sketch6.addConstraint(Sketcher.Constraint("Horizontal", 14))
sketch6.addConstraint(Sketcher.Constraint("Vertical", 15))
sketch6.addConstraint(Sketcher.Constraint("Vertical", 16))
sketch6.addConstraint(Sketcher.Constraint("Horizontal", 17))
sketch6.addConstraint(Sketcher.Constraint("Vertical", 18))
sketch6.addConstraint(Sketcher.Constraint("Horizontal", 19))
sketch6.addConstraint(Sketcher.Constraint("Vertical", 20))
sketch6.addConstraint(Sketcher.Constraint("Horizontal", 21))
sketch6.addConstraint(Sketcher.Constraint("Vertical", 22))
sketch6.addConstraint(Sketcher.Constraint("Horizontal", 23))
sketch6.addConstraint(Sketcher.Constraint("Vertical", 24))
sketch6.addConstraint(Sketcher.Constraint("Horizontal", 25))
sketch6.addConstraint(Sketcher.Constraint("Vertical", 26))
sketch6.addConstraint(Sketcher.Constraint("Horizontal", 27))
sketch6.addConstraint(Sketcher.Constraint("Vertical", 28))
sketch6.addConstraint(Sketcher.Constraint("Horizontal", 29))
sketch6.addConstraint(Sketcher.Constraint("Vertical", 30))
sketch6.addConstraint(Sketcher.Constraint("Horizontal", 31))
sketch6.addConstraint(Sketcher.Constraint("Horizontal", 1, 2, 4, 2))
sketch6.addConstraint(Sketcher.Constraint("Horizontal", 3, 2, 6, 2))
sketch6.addConstraint(Sketcher.Constraint("Horizontal", 17, 2, 20, 2))
sketch6.addConstraint(Sketcher.Constraint("Horizontal", 19, 2, 22, 2))
sketch6.addConstraint(Sketcher.Constraint("Horizontal", 15, 2, 24, 2))
sketch6.addConstraint(Sketcher.Constraint("Horizontal", 14, 2, 26, 2))
sketch6.addConstraint(Sketcher.Constraint("Horizontal", 9, 2, 28, 2))
sketch6.addConstraint(Sketcher.Constraint("Horizontal", 11, 2, 30, 2))
sketch6.addConstraint(Sketcher.Constraint("Vertical", 10, 2, 12, 2))
sketch6.addConstraint(Sketcher.Constraint("Vertical", 11, 2, 14, 2))
sketch6.addConstraint(Sketcher.Constraint("Vertical", 3, 2, 16, 2))
sketch6.addConstraint(Sketcher.Constraint("Vertical", 2, 2, 17, 2))
sketch6.addConstraint(Sketcher.Constraint("Vertical", 7, 2, 20, 2))
sketch6.addConstraint(Sketcher.Constraint("Vertical", 6, 2, 21, 2))
sketch6.addConstraint(Sketcher.Constraint("Vertical", 27, 2, 28, 2))
sketch6.addConstraint(Sketcher.Constraint("Vertical", 26, 2, 29, 2))
sketch6.addConstraint(Sketcher.Constraint("Equal", 3, 5))
sketch6.addConstraint(Sketcher.Constraint("Equal", 14, 25))
sketch6.addConstraint(Sketcher.Constraint("Equal", 31, 0))
sketch6.addConstraint(Sketcher.Constraint("Equal", 23, 8))
sketch6.addConstraint(Sketcher.Constraint("Equal", 10, 13))
sketch6.addConstraint(Sketcher.Constraint("Equal", 6, 16))
sketch6.addConstraint(Sketcher.Constraint("DistanceX", 1, 1, 1, 2, Q("0.5 in")))
sketch6.addConstraint(Sketcher.Constraint("DistanceY", -1, 1, 0, 2, Q("7 in")))
sketch6.addConstraint(Sketcher.Constraint("DistanceX", 4, 2, 0, 2, Q("2 in")))
sketch6.addConstraint(Sketcher.Constraint("DistanceX", 0, 2, 8, 2, Q("2 in")))
sketch6.addConstraint(Sketcher.Constraint("DistanceY", 12, 2, 10, 2, Q("2 in")))
sketch6.addConstraint(Sketcher.Constraint("DistanceX", 25, 2, 22, 2, Q("2 in")))
sketch6.addConstraint(Sketcher.Constraint("DistanceX", 9, 1, 9, 2, Q("0.18 in")))
sketch6.addConstraint(Sketcher.Constraint("DistanceY", -1, 1, 18, 2, Q("3.5 in")))
sketch6.addConstraint(Sketcher.Constraint("DistanceX", -1, 1, 0, 2, Q("5.75 in")))
sketch6.addConstraint(Sketcher.Constraint("DistanceY", -1, 1, 8, 2, Q("5.75 in")))
pocket5 = body.newObject("PartDesign::Pocket", "Pocket004")
pocket5.Profile = sketch6
pocket5.Type = "ThroughAll"

doc.recompute()
